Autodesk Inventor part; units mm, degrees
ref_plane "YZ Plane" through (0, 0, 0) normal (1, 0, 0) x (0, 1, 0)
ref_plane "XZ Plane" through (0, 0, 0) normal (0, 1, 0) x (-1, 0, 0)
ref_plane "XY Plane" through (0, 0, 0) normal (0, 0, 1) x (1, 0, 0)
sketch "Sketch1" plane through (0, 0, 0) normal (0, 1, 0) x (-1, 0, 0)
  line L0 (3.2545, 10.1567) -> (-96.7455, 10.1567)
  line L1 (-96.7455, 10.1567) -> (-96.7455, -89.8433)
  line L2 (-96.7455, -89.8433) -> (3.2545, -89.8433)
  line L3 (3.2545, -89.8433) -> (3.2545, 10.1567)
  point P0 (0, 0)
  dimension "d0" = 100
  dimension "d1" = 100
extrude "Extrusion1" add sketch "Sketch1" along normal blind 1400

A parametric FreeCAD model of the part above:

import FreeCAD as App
import Part
import Sketcher
from FreeCAD import Vector
Q = App.Units.Quantity


def add_polygon(sketch, points):
    """Adds a closed chain of lines whose ends are joined by coincident constraints."""
    first, n = sketch.GeometryCount, len(points)
    for a, b in zip(points, points[1:] + points[:1]):
        sketch.addGeometry(Part.LineSegment(App.Vector(*a, 0), App.Vector(*b, 0)), False)
    for i in range(n):
        sketch.addConstraint(Sketcher.Constraint("Coincident", first + i, 2, first + (i + 1) % n, 1))

doc = App.newDocument("Part")
body = doc.addObject("PartDesign::Body", "Body")

# Sketch on XZ plane
sketch1 = doc.addObject("Sketcher::SketchObject", "Sketch")
body.addObject(sketch1)
sketch1.AttachmentSupport = (doc.XZ_Plane, [""])
sketch1.MapMode = "FlatFace"
add_polygon(sketch1, [(-3.2545, -89.8433), (-3.2545, 10.1567), (96.7455, 10.1567), (96.7455, -89.8433)])  # lines 0-3
sketch1.addConstraint(Sketcher.Constraint("Vertical", 0))
sketch1.addConstraint(Sketcher.Constraint("Horizontal", 1))
sketch1.addConstraint(Sketcher.Constraint("Vertical", 2))
sketch1.addConstraint(Sketcher.Constraint("Horizontal", 3))
sketch1.addConstraint(Sketcher.Constraint("Equal", 3, 0))
sketch1.addConstraint(Sketcher.Constraint("DistanceX", 1, 1, 1, 2, Q("3.937 in")))
sketch1.addConstraint(Sketcher.Constraint("DistanceX", 0, 2, -1, 1, Q("3.2545 mm")))
sketch1.addConstraint(Sketcher.Constraint("DistanceY", -1, 1, 0, 2, Q("10.1567 mm")))
pad1 = doc.addObject("PartDesign::Pad", "Pad")
body.addObject(pad1)
pad1.Profile = sketch1
pad1.Length = Q("55.1181102 in")
pad1.Reversed = True

doc.recompute()
